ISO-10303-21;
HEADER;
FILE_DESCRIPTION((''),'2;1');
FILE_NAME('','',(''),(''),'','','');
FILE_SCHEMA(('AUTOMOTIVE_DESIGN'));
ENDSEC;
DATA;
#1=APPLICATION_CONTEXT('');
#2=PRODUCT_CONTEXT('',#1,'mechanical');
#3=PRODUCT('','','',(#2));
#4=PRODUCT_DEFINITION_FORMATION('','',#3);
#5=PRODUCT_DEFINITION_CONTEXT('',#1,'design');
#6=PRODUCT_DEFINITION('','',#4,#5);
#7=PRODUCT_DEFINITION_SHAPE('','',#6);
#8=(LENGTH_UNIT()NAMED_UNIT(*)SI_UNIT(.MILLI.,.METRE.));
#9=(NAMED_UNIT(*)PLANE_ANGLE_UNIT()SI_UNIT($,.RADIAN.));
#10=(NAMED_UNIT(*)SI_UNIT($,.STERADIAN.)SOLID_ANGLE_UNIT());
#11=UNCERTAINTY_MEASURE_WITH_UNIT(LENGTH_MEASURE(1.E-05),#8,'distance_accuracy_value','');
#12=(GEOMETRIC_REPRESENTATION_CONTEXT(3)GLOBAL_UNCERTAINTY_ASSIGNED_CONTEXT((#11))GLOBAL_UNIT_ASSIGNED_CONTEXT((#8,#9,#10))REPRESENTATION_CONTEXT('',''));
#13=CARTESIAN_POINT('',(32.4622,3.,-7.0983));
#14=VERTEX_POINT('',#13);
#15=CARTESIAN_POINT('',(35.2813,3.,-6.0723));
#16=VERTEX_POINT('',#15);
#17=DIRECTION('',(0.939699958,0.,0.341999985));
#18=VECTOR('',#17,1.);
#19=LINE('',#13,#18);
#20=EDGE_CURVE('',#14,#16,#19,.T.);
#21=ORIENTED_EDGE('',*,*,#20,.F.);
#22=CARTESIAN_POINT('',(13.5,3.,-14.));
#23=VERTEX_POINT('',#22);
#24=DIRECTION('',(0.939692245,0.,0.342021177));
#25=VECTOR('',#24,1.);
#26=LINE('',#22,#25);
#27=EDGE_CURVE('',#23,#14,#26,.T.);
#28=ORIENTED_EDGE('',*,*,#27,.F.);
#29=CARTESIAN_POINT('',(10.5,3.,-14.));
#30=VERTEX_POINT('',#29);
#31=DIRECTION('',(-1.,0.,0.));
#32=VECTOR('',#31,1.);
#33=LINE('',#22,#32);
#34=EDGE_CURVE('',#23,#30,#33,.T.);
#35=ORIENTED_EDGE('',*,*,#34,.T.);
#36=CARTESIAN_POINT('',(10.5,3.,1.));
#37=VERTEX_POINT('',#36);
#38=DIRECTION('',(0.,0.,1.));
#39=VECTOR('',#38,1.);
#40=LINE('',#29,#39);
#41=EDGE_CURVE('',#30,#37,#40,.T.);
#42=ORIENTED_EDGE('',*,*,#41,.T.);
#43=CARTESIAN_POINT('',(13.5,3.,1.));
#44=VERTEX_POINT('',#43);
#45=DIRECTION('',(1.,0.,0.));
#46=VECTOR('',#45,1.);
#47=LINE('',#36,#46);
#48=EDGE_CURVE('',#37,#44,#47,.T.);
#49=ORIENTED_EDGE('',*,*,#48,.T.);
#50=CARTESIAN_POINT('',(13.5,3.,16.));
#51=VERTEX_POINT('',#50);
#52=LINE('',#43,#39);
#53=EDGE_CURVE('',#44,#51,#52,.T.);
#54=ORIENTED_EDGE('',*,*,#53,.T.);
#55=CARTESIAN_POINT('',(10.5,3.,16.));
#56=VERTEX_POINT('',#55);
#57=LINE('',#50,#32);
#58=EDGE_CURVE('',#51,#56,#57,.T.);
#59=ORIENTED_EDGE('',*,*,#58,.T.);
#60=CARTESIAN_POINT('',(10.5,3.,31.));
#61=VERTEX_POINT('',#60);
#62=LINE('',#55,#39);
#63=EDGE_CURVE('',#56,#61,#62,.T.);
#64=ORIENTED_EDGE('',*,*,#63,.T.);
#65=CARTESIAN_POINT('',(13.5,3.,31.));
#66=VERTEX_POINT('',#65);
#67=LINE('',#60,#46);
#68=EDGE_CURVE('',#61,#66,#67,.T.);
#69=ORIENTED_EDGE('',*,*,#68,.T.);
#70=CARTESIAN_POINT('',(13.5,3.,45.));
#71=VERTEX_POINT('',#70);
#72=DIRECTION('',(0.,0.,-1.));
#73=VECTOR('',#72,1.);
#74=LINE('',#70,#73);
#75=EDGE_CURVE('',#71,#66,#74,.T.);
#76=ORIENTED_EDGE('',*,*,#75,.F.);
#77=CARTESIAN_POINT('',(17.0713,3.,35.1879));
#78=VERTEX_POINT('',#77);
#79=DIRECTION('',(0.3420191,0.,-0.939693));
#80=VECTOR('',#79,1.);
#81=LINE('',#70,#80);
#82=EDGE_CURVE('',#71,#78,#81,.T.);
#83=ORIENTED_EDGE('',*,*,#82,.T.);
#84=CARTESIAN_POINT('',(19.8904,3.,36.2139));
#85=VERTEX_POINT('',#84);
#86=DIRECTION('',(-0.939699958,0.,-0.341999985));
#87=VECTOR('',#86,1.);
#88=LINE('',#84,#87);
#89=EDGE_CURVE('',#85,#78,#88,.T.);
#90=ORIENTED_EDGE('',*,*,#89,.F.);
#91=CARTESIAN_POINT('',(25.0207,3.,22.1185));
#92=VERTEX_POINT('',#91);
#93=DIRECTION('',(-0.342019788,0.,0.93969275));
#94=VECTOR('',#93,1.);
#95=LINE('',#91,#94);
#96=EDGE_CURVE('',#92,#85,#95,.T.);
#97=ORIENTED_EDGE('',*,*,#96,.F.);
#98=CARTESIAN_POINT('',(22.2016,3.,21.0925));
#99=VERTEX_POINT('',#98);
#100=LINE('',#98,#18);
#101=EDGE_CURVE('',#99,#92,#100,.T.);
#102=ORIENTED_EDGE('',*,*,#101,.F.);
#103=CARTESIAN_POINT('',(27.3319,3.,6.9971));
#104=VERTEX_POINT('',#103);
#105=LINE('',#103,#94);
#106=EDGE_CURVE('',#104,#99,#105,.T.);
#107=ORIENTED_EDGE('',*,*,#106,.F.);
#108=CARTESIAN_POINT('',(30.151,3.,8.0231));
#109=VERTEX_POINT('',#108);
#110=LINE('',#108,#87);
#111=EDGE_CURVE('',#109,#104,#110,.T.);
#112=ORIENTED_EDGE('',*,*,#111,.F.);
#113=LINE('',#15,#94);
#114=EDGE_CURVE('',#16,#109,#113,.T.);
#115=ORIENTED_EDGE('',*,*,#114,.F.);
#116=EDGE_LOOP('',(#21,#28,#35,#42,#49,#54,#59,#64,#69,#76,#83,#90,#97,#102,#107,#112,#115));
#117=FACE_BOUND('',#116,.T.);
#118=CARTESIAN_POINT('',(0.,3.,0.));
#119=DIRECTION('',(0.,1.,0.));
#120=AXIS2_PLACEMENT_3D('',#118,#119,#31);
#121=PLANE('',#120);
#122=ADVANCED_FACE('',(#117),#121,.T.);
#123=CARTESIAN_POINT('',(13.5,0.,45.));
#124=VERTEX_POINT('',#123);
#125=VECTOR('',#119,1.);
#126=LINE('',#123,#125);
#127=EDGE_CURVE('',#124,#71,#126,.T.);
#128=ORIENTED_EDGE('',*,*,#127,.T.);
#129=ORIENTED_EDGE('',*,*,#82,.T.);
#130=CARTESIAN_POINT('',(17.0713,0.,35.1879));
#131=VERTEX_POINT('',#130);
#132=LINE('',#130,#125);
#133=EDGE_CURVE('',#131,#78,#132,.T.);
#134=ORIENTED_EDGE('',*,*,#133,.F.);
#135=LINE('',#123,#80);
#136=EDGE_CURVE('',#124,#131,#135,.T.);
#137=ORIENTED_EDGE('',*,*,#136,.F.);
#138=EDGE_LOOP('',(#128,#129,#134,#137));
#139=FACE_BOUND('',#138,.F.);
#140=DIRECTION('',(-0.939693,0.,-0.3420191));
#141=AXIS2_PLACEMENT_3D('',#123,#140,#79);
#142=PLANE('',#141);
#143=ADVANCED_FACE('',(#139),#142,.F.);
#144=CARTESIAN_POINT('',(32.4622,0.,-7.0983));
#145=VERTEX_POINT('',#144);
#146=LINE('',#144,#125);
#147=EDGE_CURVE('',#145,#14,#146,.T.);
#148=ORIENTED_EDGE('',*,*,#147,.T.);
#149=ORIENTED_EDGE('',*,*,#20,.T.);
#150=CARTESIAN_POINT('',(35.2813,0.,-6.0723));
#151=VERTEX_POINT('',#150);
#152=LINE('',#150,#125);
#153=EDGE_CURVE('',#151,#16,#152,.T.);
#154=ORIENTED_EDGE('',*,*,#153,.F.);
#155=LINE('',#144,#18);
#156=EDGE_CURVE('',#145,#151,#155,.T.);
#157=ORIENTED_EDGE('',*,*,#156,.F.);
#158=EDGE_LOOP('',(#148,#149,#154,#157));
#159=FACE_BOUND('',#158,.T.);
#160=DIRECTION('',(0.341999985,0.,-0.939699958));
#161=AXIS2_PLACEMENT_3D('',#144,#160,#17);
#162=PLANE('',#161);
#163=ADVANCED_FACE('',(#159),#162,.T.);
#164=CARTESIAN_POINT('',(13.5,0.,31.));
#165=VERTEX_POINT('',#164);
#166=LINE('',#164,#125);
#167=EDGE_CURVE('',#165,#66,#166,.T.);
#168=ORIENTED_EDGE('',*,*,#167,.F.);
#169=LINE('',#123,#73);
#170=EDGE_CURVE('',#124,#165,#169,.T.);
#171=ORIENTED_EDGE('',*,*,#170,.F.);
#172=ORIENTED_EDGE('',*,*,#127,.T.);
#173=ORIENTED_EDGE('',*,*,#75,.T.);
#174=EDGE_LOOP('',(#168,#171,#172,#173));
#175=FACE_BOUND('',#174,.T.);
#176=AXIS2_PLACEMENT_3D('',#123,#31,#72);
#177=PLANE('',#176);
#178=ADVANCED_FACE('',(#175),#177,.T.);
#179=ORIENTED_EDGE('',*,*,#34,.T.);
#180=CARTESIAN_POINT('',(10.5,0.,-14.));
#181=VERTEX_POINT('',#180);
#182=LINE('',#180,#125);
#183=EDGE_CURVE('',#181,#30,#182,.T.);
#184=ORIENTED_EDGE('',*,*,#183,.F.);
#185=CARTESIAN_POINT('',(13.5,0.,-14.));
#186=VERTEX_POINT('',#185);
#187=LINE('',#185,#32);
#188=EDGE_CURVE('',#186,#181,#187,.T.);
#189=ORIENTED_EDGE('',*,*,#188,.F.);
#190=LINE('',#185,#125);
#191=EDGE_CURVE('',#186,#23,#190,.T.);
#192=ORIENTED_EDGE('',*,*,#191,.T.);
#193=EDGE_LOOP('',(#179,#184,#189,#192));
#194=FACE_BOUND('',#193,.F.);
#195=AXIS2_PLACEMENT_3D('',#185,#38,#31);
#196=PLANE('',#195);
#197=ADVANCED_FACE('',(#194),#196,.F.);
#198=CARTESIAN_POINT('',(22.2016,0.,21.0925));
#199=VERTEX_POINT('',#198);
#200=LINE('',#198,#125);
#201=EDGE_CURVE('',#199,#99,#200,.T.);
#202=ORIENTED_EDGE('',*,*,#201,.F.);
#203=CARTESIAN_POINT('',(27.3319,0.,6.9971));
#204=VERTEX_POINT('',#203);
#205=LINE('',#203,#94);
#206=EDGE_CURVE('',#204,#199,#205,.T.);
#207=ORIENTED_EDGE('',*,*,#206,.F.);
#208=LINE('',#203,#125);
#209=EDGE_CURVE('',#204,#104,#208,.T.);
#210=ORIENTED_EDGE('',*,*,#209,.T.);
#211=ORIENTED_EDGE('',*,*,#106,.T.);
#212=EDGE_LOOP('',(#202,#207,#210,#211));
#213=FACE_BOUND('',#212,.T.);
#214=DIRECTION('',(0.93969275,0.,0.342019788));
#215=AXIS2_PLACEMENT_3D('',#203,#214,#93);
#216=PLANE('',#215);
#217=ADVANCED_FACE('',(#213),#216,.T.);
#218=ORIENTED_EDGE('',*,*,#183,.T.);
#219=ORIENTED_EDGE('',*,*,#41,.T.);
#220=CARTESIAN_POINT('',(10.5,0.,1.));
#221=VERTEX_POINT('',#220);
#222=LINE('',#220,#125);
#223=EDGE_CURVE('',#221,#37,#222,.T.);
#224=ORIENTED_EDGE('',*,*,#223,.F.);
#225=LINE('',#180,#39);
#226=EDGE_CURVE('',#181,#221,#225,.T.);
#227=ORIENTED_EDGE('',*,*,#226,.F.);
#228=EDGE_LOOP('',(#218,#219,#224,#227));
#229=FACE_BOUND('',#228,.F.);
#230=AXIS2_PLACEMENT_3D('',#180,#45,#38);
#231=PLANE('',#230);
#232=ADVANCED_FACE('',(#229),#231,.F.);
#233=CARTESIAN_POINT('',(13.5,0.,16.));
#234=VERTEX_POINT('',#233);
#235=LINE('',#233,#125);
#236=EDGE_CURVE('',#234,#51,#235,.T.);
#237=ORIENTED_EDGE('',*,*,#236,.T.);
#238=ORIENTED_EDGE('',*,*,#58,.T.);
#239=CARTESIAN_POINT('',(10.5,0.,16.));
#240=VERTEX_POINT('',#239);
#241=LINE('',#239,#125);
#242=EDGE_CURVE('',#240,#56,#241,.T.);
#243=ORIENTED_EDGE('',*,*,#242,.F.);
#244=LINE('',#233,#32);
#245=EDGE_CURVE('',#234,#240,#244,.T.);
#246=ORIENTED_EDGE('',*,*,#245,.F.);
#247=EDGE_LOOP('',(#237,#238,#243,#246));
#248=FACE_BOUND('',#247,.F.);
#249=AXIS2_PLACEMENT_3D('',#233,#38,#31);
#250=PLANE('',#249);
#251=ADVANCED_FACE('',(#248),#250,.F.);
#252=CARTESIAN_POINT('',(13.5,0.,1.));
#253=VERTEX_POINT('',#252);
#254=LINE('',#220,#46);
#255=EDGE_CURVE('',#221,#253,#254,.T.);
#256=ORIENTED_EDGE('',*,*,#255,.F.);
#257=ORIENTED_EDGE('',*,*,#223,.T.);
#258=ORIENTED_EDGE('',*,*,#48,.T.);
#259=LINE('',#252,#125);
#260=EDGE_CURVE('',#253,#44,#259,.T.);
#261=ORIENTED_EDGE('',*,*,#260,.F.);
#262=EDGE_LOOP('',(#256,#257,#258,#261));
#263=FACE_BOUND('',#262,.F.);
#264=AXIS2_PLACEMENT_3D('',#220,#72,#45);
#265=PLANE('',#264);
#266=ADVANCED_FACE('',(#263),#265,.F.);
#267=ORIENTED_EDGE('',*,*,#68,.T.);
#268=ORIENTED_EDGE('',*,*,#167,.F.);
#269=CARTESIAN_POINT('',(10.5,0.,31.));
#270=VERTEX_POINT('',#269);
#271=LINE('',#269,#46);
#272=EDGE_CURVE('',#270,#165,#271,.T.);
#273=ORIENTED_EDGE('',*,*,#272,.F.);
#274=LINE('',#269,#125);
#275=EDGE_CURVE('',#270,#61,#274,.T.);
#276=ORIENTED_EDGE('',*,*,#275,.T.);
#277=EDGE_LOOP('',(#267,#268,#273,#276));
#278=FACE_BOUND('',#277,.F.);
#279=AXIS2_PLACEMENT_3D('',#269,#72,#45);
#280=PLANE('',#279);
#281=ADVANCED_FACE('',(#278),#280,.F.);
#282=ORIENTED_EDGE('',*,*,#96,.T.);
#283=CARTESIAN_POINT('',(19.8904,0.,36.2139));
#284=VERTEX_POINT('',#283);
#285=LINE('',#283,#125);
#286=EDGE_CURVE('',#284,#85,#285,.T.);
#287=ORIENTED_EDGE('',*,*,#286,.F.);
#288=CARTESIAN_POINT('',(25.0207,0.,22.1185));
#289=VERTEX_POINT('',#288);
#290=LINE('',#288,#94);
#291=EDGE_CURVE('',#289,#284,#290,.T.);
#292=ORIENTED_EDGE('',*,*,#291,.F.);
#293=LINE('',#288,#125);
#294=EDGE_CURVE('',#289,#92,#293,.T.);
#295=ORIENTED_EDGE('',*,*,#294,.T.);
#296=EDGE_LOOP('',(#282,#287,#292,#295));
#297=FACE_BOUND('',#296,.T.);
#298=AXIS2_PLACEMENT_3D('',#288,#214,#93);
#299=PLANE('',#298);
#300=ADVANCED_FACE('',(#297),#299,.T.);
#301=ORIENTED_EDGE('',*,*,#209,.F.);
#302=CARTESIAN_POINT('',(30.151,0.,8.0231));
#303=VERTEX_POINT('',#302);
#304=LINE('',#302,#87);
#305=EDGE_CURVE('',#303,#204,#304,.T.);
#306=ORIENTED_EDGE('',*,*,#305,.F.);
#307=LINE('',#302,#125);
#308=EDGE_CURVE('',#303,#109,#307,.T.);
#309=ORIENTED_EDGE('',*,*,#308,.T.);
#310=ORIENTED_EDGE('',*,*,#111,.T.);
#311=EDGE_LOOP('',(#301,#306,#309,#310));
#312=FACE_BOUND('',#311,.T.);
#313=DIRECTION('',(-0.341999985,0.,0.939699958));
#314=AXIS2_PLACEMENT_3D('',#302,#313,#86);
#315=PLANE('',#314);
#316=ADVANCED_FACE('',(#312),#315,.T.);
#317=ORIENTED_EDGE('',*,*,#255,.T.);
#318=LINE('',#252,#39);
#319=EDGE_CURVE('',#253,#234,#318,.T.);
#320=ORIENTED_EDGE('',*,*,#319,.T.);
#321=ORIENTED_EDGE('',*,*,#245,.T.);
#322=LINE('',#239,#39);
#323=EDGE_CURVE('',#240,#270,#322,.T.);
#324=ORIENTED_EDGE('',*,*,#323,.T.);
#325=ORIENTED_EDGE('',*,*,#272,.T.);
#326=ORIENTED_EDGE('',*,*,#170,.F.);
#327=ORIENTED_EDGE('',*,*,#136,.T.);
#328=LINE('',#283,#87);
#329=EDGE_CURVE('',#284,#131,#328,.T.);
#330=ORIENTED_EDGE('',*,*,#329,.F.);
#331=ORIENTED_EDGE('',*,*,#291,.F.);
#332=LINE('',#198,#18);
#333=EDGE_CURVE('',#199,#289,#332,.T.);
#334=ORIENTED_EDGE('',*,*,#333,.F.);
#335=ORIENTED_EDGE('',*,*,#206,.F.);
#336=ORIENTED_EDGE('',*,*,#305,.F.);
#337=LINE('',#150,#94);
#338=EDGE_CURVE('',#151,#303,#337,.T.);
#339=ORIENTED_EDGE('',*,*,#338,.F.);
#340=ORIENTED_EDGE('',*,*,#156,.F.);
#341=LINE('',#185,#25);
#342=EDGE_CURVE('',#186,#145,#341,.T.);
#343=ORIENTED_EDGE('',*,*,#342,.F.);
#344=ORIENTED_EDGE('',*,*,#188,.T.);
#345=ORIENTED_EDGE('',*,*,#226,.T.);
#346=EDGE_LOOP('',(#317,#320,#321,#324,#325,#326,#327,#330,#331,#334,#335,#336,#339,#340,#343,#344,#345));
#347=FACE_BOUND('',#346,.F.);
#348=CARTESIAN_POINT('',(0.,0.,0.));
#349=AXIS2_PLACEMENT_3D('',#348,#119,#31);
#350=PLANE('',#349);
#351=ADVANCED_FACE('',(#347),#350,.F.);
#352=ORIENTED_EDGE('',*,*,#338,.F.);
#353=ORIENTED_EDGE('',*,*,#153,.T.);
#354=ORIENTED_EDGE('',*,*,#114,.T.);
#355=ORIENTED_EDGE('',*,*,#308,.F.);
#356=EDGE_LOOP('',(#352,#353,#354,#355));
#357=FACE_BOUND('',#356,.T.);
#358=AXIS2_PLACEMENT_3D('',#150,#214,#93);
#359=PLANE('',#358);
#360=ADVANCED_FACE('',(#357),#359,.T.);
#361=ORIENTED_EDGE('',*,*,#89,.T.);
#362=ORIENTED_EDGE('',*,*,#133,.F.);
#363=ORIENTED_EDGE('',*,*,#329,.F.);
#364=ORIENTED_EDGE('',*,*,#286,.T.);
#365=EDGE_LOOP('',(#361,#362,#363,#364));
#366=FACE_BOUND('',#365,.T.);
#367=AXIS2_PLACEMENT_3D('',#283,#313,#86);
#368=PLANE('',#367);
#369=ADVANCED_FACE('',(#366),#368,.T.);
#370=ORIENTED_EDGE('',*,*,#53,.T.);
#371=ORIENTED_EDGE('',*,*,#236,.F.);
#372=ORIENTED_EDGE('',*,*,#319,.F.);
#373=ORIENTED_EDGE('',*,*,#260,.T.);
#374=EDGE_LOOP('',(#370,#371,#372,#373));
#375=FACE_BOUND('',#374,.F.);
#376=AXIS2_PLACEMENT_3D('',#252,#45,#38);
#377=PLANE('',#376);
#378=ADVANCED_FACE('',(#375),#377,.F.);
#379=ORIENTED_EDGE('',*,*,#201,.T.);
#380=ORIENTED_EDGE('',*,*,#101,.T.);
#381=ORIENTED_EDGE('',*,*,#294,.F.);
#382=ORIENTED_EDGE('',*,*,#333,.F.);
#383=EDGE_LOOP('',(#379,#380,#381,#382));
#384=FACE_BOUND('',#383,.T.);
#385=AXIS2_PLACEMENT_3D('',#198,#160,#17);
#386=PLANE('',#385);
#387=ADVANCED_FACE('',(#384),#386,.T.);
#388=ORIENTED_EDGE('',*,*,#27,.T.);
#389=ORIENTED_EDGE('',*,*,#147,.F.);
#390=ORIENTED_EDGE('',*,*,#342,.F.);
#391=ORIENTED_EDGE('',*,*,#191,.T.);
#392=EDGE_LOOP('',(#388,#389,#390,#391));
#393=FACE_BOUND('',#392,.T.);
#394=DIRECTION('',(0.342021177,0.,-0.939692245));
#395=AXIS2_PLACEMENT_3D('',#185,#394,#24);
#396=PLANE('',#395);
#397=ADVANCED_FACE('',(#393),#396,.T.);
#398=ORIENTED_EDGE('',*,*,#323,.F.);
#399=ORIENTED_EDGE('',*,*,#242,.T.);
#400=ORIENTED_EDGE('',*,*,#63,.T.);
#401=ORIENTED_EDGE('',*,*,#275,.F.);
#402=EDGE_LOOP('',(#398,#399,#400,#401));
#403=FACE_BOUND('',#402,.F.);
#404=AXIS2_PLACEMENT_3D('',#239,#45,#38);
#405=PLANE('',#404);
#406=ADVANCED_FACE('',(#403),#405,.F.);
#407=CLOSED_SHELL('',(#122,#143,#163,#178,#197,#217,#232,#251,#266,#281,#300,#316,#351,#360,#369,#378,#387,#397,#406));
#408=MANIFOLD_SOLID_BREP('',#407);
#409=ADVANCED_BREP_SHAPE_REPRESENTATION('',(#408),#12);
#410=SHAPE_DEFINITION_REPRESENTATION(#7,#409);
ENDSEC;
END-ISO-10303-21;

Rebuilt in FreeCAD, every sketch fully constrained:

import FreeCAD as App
import Part
import Sketcher
from FreeCAD import Vector
Q = App.Units.Quantity

doc = App.newDocument("Part")
body = doc.addObject("PartDesign::Body", "Body")

# Sketch on XZ plane
sketch1 = body.newObject("Sketcher::SketchObject", "Sketch")
sketch1.AttachmentSupport = (doc.getObject("XZ_Plane"), [""])
sketch1.MapMode = "FlatFace"
sketch1.addGeometry([
    Part.LineSegment(Vector(32.4622, -7.0983, 0), Vector(13.5, -14, 0)),  # 0
    Part.LineSegment(Vector(13.5, -14, 0), Vector(10.5, -14, 0)),  # 1
    Part.LineSegment(Vector(10.5, -14, 0), Vector(10.5, 1, 0)),  # 2
    Part.LineSegment(Vector(10.5, 1, 0), Vector(13.5, 1, 0)),  # 3
    Part.LineSegment(Vector(13.5, 1, 0), Vector(13.5, 16, 0)),  # 4
    Part.LineSegment(Vector(13.5, 16, 0), Vector(10.5, 16, 0)),  # 5
    Part.LineSegment(Vector(10.5, 16, 0), Vector(10.5, 31, 0)),  # 6
    Part.LineSegment(Vector(10.5, 31, 0), Vector(13.5, 31, 0)),  # 7
    Part.LineSegment(Vector(13.5, 31, 0), Vector(13.5, 45, 0)),  # 8
    Part.LineSegment(Vector(13.5, 45, 0), Vector(17.0713, 35.1879, 0)),  # 9
    Part.LineSegment(Vector(17.0713, 35.1879, 0), Vector(19.8904, 36.2139, 0)),  # 10
    Part.LineSegment(Vector(19.8904, 36.2139, 0), Vector(25.0207, 22.1185, 0)),  # 11
    Part.LineSegment(Vector(25.0207, 22.1185, 0), Vector(22.2016, 21.0925, 0)),  # 12
    Part.LineSegment(Vector(22.2016, 21.0925, 0), Vector(27.3319, 6.9971, 0)),  # 13
    Part.LineSegment(Vector(27.3319, 6.9971, 0), Vector(30.151, 8.0231, 0)),  # 14
    Part.LineSegment(Vector(30.151, 8.0231, 0), Vector(35.2813, -6.0723, 0)),  # 15
    Part.LineSegment(Vector(35.2813, -6.0723, 0), Vector(32.4622, -7.0983, 0)),  # 16
], False)
sketch1.addConstraint([
    Sketcher.Constraint("Coincident", 0, 2, 1, 1),
    Sketcher.Constraint("Coincident", 1, 2, 2, 1),
    Sketcher.Constraint("Coincident", 2, 2, 3, 1),
    Sketcher.Constraint("Coincident", 3, 2, 4, 1),
    Sketcher.Constraint("Coincident", 4, 2, 5, 1),
    Sketcher.Constraint("Coincident", 5, 2, 6, 1),
    Sketcher.Constraint("Coincident", 6, 2, 7, 1),
    Sketcher.Constraint("Coincident", 7, 2, 8, 1),
    Sketcher.Constraint("Coincident", 8, 2, 9, 1),
    Sketcher.Constraint("Coincident", 9, 2, 10, 1),
    Sketcher.Constraint("Coincident", 10, 2, 11, 1),
    Sketcher.Constraint("Coincident", 11, 2, 12, 1),
    Sketcher.Constraint("Coincident", 12, 2, 13, 1),
    Sketcher.Constraint("Coincident", 13, 2, 14, 1),
    Sketcher.Constraint("Coincident", 14, 2, 15, 1),
    Sketcher.Constraint("Coincident", 15, 2, 16, 1),
    Sketcher.Constraint("Coincident", 16, 2, 0, 1),
    Sketcher.Constraint("Horizontal", 1),
    Sketcher.Constraint("Vertical", 2),
    Sketcher.Constraint("Horizontal", 3),
    Sketcher.Constraint("Vertical", 4),
    Sketcher.Constraint("Horizontal", 5),
    Sketcher.Constraint("Vertical", 6),
    Sketcher.Constraint("Horizontal", 7),
    Sketcher.Constraint("Vertical", 8),
    Sketcher.Constraint("Perpendicular", 0, 9),
    Sketcher.Constraint("Perpendicular", 9, 10),
    Sketcher.Constraint("Perpendicular", 10, 11),
    Sketcher.Constraint("Perpendicular", 11, 12),
    Sketcher.Constraint("Perpendicular", 12, 13),
    Sketcher.Constraint("Perpendicular", 13, 14),
    Sketcher.Constraint("Perpendicular", 14, 15),
    Sketcher.Constraint("Perpendicular", 15, 16),
    Sketcher.Constraint("Vertical", 0, 2, 3, 2),
    Sketcher.Constraint("Vertical", 2, 2, 5, 2),
    Sketcher.Constraint("Vertical", 4, 2, 7, 2),
    Sketcher.Constraint("Equal", 2, 4),
    Sketcher.Constraint("Equal", 4, 6),
    Sketcher.Constraint("Equal", 10, 12),
    Sketcher.Constraint("Equal", 11, 13),
    Sketcher.Constraint("Equal", 12, 14),
    Sketcher.Constraint("Equal", 13, 15),
    Sketcher.Constraint("Equal", 14, 16),
    Sketcher.Constraint("DistanceX", 1, 2, 1, 1, 3.0),
    Sketcher.Constraint("DistanceY", 2, 1, 2, 2, 15.0),
    Sketcher.Constraint("Distance", 10, 3.0),
    Sketcher.Constraint("Distance", 11, 15.0),
    Sketcher.Constraint("DistanceY", 8, 1, 8, 2, 14.0),
    Sketcher.Constraint("Angle", 0, Q("-160 deg")),
    Sketcher.Constraint("DistanceY", 0, 2, -1, 1, 14.0),
    Sketcher.Constraint("DistanceX", -1, 1, 0, 2, 13.5),
])
pad1 = body.newObject("PartDesign::Pad", "Pad")
pad1.Profile = sketch1
pad1.Length = 3
pad1.Reversed = True

doc.recompute()
